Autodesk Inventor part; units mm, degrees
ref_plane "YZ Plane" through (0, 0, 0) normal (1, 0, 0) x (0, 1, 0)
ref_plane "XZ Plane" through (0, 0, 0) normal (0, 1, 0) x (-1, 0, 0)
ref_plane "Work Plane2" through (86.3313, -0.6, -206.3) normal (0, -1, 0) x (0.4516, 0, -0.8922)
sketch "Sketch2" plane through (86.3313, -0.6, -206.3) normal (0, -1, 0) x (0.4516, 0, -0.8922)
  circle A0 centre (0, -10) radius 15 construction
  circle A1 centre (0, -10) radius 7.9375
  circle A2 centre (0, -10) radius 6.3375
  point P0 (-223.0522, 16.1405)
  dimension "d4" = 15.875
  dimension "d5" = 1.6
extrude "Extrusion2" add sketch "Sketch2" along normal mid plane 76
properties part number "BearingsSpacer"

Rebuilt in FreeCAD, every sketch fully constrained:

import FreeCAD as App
import Part
import Sketcher
from FreeCAD import Vector

doc = App.newDocument("Part")
params = doc.addObject("Spreadsheet::Sheet", "Params")
for row, (alias, value) in enumerate([
    ("pad1_length", "76 mm"),
], start=1):
    params.set(f"A{row}", alias)
    params.set(f"B{row}", "=" + value)
    params.setAlias(f"B{row}", alias)

body = doc.addObject("PartDesign::Body", "Body")

# Sketch on XZ plane
sketch1 = body.newObject("Sketcher::SketchObject", "Sketch")
sketch1.AttachmentSupport = (doc.getObject("XZ_Plane"), [""])
sketch1.MapMode = "FlatFace"
sketch1.AttachmentOffset = App.Placement(Vector(0, 0, 0.6), App.Rotation())
sketch1.addGeometry([
    Part.Circle(Vector(77, -211, 0), Vector(0, 0, 1), 8),
    Part.Circle(Vector(77, -211, 0), Vector(0, 0, 1), 6),
], False)
sketch1.addConstraint([
    Sketcher.Constraint("Coincident", 1, 3, 0, 3),
    Sketcher.Constraint("Diameter", 0, 15.875),
    Sketcher.Constraint("Diameter", 1, 12.675),
    Sketcher.Constraint("DistanceY", 0, 3, -1, 1, 210.816),
    Sketcher.Constraint("DistanceX", -1, 1, 0, 3, 77.4091),
])
pad1 = body.newObject("PartDesign::Pad", "Pad")
pad1.Profile = sketch1
pad1.setExpression("Length", "Params.pad1_length")
pad1.Midplane = True

doc.recompute()
